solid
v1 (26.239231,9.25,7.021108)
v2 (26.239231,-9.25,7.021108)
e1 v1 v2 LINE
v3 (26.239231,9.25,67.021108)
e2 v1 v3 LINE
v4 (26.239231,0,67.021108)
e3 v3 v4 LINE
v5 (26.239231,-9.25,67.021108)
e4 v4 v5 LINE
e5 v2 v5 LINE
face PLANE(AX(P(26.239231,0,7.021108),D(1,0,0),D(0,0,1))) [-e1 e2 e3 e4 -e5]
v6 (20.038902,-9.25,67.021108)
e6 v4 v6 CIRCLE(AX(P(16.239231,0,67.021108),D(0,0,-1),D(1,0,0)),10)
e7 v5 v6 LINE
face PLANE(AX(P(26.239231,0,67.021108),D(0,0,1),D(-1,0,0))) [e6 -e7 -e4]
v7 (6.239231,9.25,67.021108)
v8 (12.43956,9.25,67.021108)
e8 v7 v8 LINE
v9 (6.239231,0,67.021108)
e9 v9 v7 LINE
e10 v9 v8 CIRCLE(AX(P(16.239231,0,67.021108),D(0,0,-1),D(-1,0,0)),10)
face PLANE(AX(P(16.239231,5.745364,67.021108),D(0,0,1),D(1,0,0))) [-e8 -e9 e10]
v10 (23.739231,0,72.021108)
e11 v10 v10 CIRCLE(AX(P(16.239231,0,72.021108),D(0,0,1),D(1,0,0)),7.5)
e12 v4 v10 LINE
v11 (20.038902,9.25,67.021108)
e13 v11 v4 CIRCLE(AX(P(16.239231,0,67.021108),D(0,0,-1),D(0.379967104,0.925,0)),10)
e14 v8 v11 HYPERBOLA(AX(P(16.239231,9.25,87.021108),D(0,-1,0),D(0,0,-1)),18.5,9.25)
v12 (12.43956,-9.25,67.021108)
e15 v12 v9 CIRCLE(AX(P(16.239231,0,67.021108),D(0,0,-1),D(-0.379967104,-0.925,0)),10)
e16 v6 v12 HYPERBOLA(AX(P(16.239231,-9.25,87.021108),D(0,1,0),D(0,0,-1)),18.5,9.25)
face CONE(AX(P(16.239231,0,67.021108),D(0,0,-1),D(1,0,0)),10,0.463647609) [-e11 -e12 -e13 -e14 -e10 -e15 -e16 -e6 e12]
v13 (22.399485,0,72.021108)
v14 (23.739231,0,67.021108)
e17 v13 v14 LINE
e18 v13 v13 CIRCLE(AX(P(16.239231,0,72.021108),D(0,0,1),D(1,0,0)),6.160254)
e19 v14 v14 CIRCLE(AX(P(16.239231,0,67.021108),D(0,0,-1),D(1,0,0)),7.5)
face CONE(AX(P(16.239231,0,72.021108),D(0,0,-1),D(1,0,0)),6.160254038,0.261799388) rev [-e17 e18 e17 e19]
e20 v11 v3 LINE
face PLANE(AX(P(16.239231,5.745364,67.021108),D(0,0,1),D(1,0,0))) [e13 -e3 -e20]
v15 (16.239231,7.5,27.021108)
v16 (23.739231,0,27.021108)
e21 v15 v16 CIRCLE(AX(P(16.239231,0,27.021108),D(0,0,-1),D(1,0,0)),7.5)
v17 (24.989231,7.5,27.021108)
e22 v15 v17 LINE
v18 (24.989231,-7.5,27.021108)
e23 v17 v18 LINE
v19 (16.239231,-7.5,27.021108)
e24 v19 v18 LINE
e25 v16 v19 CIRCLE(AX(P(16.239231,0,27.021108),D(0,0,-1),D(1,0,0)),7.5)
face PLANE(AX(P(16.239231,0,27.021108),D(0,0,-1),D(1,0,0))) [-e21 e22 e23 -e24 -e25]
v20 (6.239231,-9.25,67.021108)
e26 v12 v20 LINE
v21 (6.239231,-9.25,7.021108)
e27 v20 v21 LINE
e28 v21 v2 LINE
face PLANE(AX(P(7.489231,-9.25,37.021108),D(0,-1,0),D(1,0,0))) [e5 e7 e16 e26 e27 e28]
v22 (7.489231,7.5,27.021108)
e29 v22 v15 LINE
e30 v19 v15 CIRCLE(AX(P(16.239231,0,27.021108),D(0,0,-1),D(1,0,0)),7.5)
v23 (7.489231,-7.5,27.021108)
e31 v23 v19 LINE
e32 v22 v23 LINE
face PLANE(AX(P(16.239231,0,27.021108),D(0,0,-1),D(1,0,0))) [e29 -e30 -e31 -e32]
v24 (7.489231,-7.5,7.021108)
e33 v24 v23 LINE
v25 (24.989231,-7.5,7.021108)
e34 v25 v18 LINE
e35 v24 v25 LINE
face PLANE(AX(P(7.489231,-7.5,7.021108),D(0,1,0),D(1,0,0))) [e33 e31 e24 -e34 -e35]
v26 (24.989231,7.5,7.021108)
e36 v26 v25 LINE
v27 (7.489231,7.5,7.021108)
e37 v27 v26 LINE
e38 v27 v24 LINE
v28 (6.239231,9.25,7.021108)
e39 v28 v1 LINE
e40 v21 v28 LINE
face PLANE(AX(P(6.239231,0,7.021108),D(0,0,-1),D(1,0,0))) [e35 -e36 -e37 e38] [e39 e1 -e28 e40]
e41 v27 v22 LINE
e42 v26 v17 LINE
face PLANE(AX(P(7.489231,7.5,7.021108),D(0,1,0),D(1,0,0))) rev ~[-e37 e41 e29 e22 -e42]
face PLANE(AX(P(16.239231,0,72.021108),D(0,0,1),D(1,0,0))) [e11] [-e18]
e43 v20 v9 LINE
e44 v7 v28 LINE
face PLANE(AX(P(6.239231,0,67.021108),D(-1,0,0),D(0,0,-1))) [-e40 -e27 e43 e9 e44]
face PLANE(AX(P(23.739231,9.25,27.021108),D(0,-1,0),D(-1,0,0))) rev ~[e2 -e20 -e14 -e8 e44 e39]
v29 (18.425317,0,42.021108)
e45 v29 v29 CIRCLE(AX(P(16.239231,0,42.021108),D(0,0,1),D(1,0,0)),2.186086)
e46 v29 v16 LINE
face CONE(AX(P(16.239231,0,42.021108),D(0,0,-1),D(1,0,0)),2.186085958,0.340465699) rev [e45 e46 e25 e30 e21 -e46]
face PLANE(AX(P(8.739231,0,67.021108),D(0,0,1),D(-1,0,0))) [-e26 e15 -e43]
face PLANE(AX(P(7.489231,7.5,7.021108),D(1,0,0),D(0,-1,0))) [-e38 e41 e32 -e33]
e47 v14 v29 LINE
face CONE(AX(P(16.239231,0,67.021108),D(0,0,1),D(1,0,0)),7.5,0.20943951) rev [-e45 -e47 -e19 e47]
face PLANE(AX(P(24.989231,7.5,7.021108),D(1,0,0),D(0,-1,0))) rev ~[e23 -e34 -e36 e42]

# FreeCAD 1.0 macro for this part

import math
import FreeCAD as App
import Part
import Sketcher
Q = App.Units.Quantity


def add_polygon(sketch, points):
    """Adds a closed chain of lines whose ends are joined by coincident constraints."""
    first, n = sketch.GeometryCount, len(points)
    for a, b in zip(points, points[1:] + points[:1]):
        sketch.addGeometry(Part.LineSegment(App.Vector(*a, 0), App.Vector(*b, 0)), False)
    for i in range(n):
        sketch.addConstraint(Sketcher.Constraint("Coincident", first + i, 2, first + (i + 1) % n, 1))

doc = App.newDocument("Part")
body = doc.addObject("PartDesign::Body", "Body")

# Sketch on XZ plane
sketch1 = doc.addObject("Sketcher::SketchObject", "Sketch")
body.addObject(sketch1)
sketch1.AttachmentSupport = (doc.XZ_Plane, [""])
sketch1.MapMode = "FlatFace"
add_polygon(sketch1, [(18.425317, 42.021108), (23.739231, 27.021108), (23.739231, 67.021108)])  # lines 0-2
sketch1.addGeometry(Part.LineSegment(App.Vector(16.239231, 27.021108, 0), App.Vector(16.239231, 67.021108, 0)), True)  # axis
sketch1.addConstraint(Sketcher.Constraint("Vertical", 1))
sketch1.addConstraint(Sketcher.Constraint("Vertical", 3))
sketch1.addConstraint(Sketcher.Constraint("Horizontal", 0, 2, 3, 1))
sketch1.addConstraint(Sketcher.Constraint("Horizontal", 1, 2, 3, 2))
sketch1.addConstraint(Sketcher.Constraint("DistanceY", 1, 1, 1, 2, 40.0))
sketch1.addConstraint(Sketcher.Constraint("Angle", 2, Q("-102 deg")))
sketch1.addConstraint(Sketcher.Constraint("DistanceY", 0, 2, 2, 2, 15.0))
sketch1.addConstraint(Sketcher.Constraint("DistanceX", 3, 1, 0, 2, 7.5))
sketch1.addConstraint(Sketcher.Constraint("DistanceX", -1, 1, 0, 2, 23.739231))
sketch1.addConstraint(Sketcher.Constraint("DistanceY", -1, 1, 0, 2, 27.021108))
revolution = doc.addObject("PartDesign::Revolution", "Revolution")
body.addObject(revolution)
revolution.Profile = sketch1
revolution.ReferenceAxis = (sketch1, ["Axis0"])
revolution.Angle = 360
body2 = doc.addObject("PartDesign::Body", "Body001")

# Sketch on XZ plane
sketch2 = doc.addObject("Sketcher::SketchObject", "Sketch001")
body2.addObject(sketch2)
sketch2.AttachmentSupport = (doc.getObject("XZ_Plane001"), [""])
sketch2.MapMode = "FlatFace"
add_polygon(sketch2, [(22.399485, 72.021108), (23.739231, 67.021108), (26.239231, 67.021108), (23.739231, 72.021108)])  # lines 0-3
sketch2.addGeometry(Part.LineSegment(App.Vector(16.239231, 67.021108, 0), App.Vector(16.239231, 72.021108, 0)), True)  # axis
sketch2.addConstraint(Sketcher.Constraint("Horizontal", 1))
sketch2.addConstraint(Sketcher.Constraint("Horizontal", 3))
sketch2.addConstraint(Sketcher.Constraint("Vertical", 4))
sketch2.addConstraint(Sketcher.Constraint("Horizontal", 1, 2, 4, 1))
sketch2.addConstraint(Sketcher.Constraint("Horizontal", 3, 2, 4, 2))
sketch2.addConstraint(Sketcher.Constraint("Vertical", 0, 2, 2, 2))
sketch2.addConstraint(Sketcher.Constraint("DistanceY", 4, 1, 4, 2, 5.0))
sketch2.addConstraint(Sketcher.Constraint("Angle", 0, Q("-75 deg")))
sketch2.addConstraint(Sketcher.Constraint("DistanceX", 1, 1, 1, 2, 2.5))
sketch2.addConstraint(Sketcher.Constraint("DistanceX", 4, 1, 1, 2, 10.0))
sketch2.addConstraint(Sketcher.Constraint("DistanceX", -1, 1, 0, 2, 23.739231))
sketch2.addConstraint(Sketcher.Constraint("DistanceY", -1, 1, 0, 2, 67.021108))
revolution2 = doc.addObject("PartDesign::Revolution", "Revolution001")
body2.addObject(revolution2)
revolution2.Profile = sketch2
revolution2.ReferenceAxis = (sketch2, ["Axis0"])
revolution2.Angle = 360

# Sketch on XY plane
sketch3 = doc.addObject("Sketcher::SketchObject", "Sketch002")
body2.addObject(sketch3)
sketch3.AttachmentSupport = (doc.getObject("XY_Plane001"), [""])
sketch3.MapMode = "FlatFace"
sketch3.AttachmentOffset = App.Placement(App.Vector(0, 0, 67.021108), App.Rotation())
sketch3.addGeometry(Part.LineSegment(App.Vector(12.43956, -9.25, 0), App.Vector(20.038902, -9.25, 0)), False)
sketch3.addGeometry(Part.ArcOfCircle(Part.Circle(App.Vector(16.239231, 0, 0), App.Vector(0, 0, 1), 10), math.radians(-112.331645), math.radians(-67.668355)), False)
sketch3.addGeometry(Part.ArcOfCircle(Part.Circle(App.Vector(16.239231, 0, 0), App.Vector(0, 0, 1), 10), math.radians(67.668355), math.radians(112.331645)), False)
sketch3.addGeometry(Part.LineSegment(App.Vector(20.038902, 9.25, 0), App.Vector(12.43956, 9.25, 0)), False)
sketch3.addConstraint(Sketcher.Constraint("Coincident", 0, 1, 1, 1))
sketch3.addConstraint(Sketcher.Constraint("Coincident", 1, 2, 0, 2))
sketch3.addConstraint(Sketcher.Constraint("Coincident", 2, 1, 3, 1))
sketch3.addConstraint(Sketcher.Constraint("Coincident", 3, 2, 2, 2))
sketch3.addConstraint(Sketcher.Constraint("Horizontal", 0))
sketch3.addConstraint(Sketcher.Constraint("Horizontal", 3))
sketch3.addConstraint(Sketcher.Constraint("Coincident", 2, 3, 1, 3))
sketch3.addConstraint(Sketcher.Constraint("Equal", 1, 2))
sketch3.addConstraint(Sketcher.Constraint("Symmetric", 1, 2, 2, 1, -1))
sketch3.addConstraint(Sketcher.Constraint("Radius", 1, 10.0))
sketch3.addConstraint(Sketcher.Constraint("DistanceY", 1, 2, 2, 1, 18.5))
sketch3.addConstraint(Sketcher.Constraint("DistanceX", -1, 1, 1, 3, 16.239231))
pocket1 = doc.addObject("PartDesign::Pocket", "Pocket")
body2.addObject(pocket1)
pocket1.Profile = sketch3
pocket1.Type = "ThroughAll"
pocket1.Reversed = True
body3 = doc.addObject("PartDesign::Body", "Body002")

# Sketch on XZ plane
sketch4 = doc.addObject("Sketcher::SketchObject", "Sketch003")
body3.addObject(sketch4)
sketch4.AttachmentSupport = (doc.getObject("XZ_Plane002"), [""])
sketch4.MapMode = "FlatFace"
add_polygon(sketch4, [(6.239231, 7.021108), (26.239231, 7.021108), (26.239231, 67.021108), (23.739231, 67.021108), (23.739231, 27.021108), (8.739231, 27.021108), (8.739231, 67.021108), (6.239231, 67.021108)])  # lines 0-7
sketch4.addConstraint(Sketcher.Constraint("Horizontal", 0))
sketch4.addConstraint(Sketcher.Constraint("Vertical", 1))
sketch4.addConstraint(Sketcher.Constraint("Horizontal", 2))
sketch4.addConstraint(Sketcher.Constraint("Vertical", 3))
sketch4.addConstraint(Sketcher.Constraint("Horizontal", 4))
sketch4.addConstraint(Sketcher.Constraint("Vertical", 5))
sketch4.addConstraint(Sketcher.Constraint("Horizontal", 6))
sketch4.addConstraint(Sketcher.Constraint("Vertical", 7))
sketch4.addConstraint(Sketcher.Constraint("Horizontal", 2, 2, 5, 2))
sketch4.addConstraint(Sketcher.Constraint("Equal", 2, 6))
sketch4.addConstraint(Sketcher.Constraint("DistanceX", 0, 1, 0, 2, 20.0))
sketch4.addConstraint(Sketcher.Constraint("DistanceX", 4, 2, 4, 1, 15.0))
sketch4.addConstraint(Sketcher.Constraint("DistanceY", 1, 1, 1, 2, 60.0))
sketch4.addConstraint(Sketcher.Constraint("DistanceY", 3, 2, 3, 1, 40.0))
sketch4.addConstraint(Sketcher.Constraint("DistanceX", -1, 1, 0, 2, 26.239231))
sketch4.addConstraint(Sketcher.Constraint("DistanceY", -1, 1, 0, 2, 7.021108))
pad1 = doc.addObject("PartDesign::Pad", "Pad")
body3.addObject(pad1)
pad1.Profile = sketch4
pad1.Length = 18.5
pad1.Midplane = True
body4 = doc.addObject("PartDesign::Body", "Body003")

# Sketch on XY plane
sketch5 = doc.addObject("Sketcher::SketchObject", "Sketch004")
body4.addObject(sketch5)
sketch5.AttachmentSupport = (doc.getObject("XY_Plane003"), [""])
sketch5.MapMode = "FlatFace"
sketch5.AttachmentOffset = App.Placement(App.Vector(0, 0, 27.021108), App.Rotation())
sketch5.addGeometry(Part.LineSegment(App.Vector(23.739231, -9.25, 0), App.Vector(23.739231, 0, 0)), False)
sketch5.addGeometry(Part.ArcOfCircle(Part.Circle(App.Vector(16.239231, 0, 0), App.Vector(0, 0, 1), 7.5), math.radians(180), math.radians(360)), False)
sketch5.addGeometry(Part.LineSegment(App.Vector(8.739231, 0, 0), App.Vector(8.739231, -9.25, 0)), False)
sketch5.addGeometry(Part.LineSegment(App.Vector(8.739231, -9.25, 0), App.Vector(23.739231, -9.25, 0)), False)
sketch5.addConstraint(Sketcher.Constraint("Tangent", 0, 2, 1, 2))
sketch5.addConstraint(Sketcher.Constraint("Tangent", 1, 1, 2, 1))
sketch5.addConstraint(Sketcher.Constraint("Coincident", 2, 2, 3, 1))
sketch5.addConstraint(Sketcher.Constraint("Coincident", 3, 2, 0, 1))
sketch5.addConstraint(Sketcher.Constraint("Vertical", 0))
sketch5.addConstraint(Sketcher.Constraint("Vertical", 2))
sketch5.addConstraint(Sketcher.Constraint("Horizontal", 3))
sketch5.addConstraint(Sketcher.Constraint("PointOnObject", 1, 3, -1))
sketch5.addConstraint(Sketcher.Constraint("Radius", 1, 7.5))
sketch5.addConstraint(Sketcher.Constraint("DistanceY", 0, 1, 0, 2, 9.25))
sketch5.addConstraint(Sketcher.Constraint("DistanceX", -1, 1, 1, 3, 16.239231))
pad2 = doc.addObject("PartDesign::Pad", "Pad001")
body4.addObject(pad2)
pad2.Profile = sketch5
pad2.Length = 40
body5 = doc.addObject("PartDesign::Body", "Body004")

# Sketch on XY plane
sketch6 = doc.addObject("Sketcher::SketchObject", "Sketch005")
body5.addObject(sketch6)
sketch6.AttachmentSupport = (doc.getObject("XY_Plane004"), [""])
sketch6.MapMode = "FlatFace"
sketch6.AttachmentOffset = App.Placement(App.Vector(0, 0, 27.021108), App.Rotation())
sketch6.addGeometry(Part.LineSegment(App.Vector(23.739231, 0, 0), App.Vector(23.739231, 9.25, 0)), False)
sketch6.addGeometry(Part.LineSegment(App.Vector(23.739231, 9.25, 0), App.Vector(8.739231, 9.25, 0)), False)
sketch6.addGeometry(Part.LineSegment(App.Vector(8.739231, 9.25, 0), App.Vector(8.739231, 0, 0)), False)
sketch6.addGeometry(Part.ArcOfCircle(Part.Circle(App.Vector(16.239231, 0, 0), App.Vector(0, 0, 1), 7.5), math.radians(0), math.radians(180)), False)
sketch6.addConstraint(Sketcher.Constraint("Coincident", 0, 2, 1, 1))
sketch6.addConstraint(Sketcher.Constraint("Coincident", 1, 2, 2, 1))
sketch6.addConstraint(Sketcher.Constraint("Tangent", 2, 2, 3, 2))
sketch6.addConstraint(Sketcher.Constraint("Tangent", 3, 1, 0, 1))
sketch6.addConstraint(Sketcher.Constraint("Vertical", 0))
sketch6.addConstraint(Sketcher.Constraint("Horizontal", 1))
sketch6.addConstraint(Sketcher.Constraint("Vertical", 2))
sketch6.addConstraint(Sketcher.Constraint("PointOnObject", 3, 3, -1))
sketch6.addConstraint(Sketcher.Constraint("Radius", 3, 7.5))
sketch6.addConstraint(Sketcher.Constraint("DistanceY", 0, 1, 0, 2, 9.25))
sketch6.addConstraint(Sketcher.Constraint("DistanceX", -1, 1, 3, 3, 16.239231))
pad3 = doc.addObject("PartDesign::Pad", "Pad002")
body5.addObject(pad3)
pad3.Profile = sketch6
pad3.Length = 40
doc.recompute()

boolean = doc.addObject("PartDesign::Boolean", "Boolean")
body4.addObject(boolean)
boolean.Type = "Fuse"
boolean.addObjects([body2])
doc.recompute()

boolean2 = doc.addObject("PartDesign::Boolean", "Boolean001")
body4.addObject(boolean2)
boolean2.Type = "Fuse"
boolean2.addObjects([body3])
doc.recompute()

boolean3 = doc.addObject("PartDesign::Boolean", "Boolean002")
body4.addObject(boolean3)
boolean3.Type = "Fuse"
boolean3.addObjects([body])
doc.recompute()

boolean4 = doc.addObject("PartDesign::Boolean", "Boolean003")
body4.addObject(boolean4)
boolean4.Type = "Fuse"
boolean4.addObjects([body5])

# Sketch on XY plane
sketch7 = doc.addObject("Sketcher::SketchObject", "Sketch006")
body4.addObject(sketch7)
sketch7.AttachmentSupport = (doc.getObject("XY_Plane003"), [""])
sketch7.MapMode = "FlatFace"
sketch7.AttachmentOffset = App.Placement(App.Vector(0, 0, 7.021108), App.Rotation())
add_polygon(sketch7, [(7.489231, -7.5), (7.489231, 7.5), (24.989231, 7.5), (24.989231, -7.5)])  # lines 0-3
sketch7.addConstraint(Sketcher.Constraint("Vertical", 0))
sketch7.addConstraint(Sketcher.Constraint("Horizontal", 1))
sketch7.addConstraint(Sketcher.Constraint("Vertical", 2))
sketch7.addConstraint(Sketcher.Constraint("Horizontal", 3))
sketch7.addConstraint(Sketcher.Constraint("DistanceY", 0, 1, 0, 2, 15.0))
sketch7.addConstraint(Sketcher.Constraint("DistanceX", 1, 1, 1, 2, 17.5))
sketch7.addConstraint(Sketcher.Constraint("DistanceY", -1, 1, 0, 2, 7.5))
sketch7.addConstraint(Sketcher.Constraint("DistanceX", -1, 1, 0, 2, 7.489231))
pocket2 = doc.addObject("PartDesign::Pocket", "Pocket001")
body4.addObject(pocket2)
pocket2.Profile = sketch7
pocket2.Length = 20
pocket2.Reversed = True

doc.recompute()
